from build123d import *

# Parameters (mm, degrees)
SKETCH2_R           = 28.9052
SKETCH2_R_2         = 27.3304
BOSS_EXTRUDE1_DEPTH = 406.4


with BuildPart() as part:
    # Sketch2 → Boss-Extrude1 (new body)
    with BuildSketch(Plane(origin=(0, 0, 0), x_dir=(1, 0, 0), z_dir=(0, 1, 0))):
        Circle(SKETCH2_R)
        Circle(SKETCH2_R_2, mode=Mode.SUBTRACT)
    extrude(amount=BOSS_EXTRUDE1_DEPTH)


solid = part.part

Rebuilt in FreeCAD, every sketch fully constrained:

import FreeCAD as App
import Part
import Sketcher
Q = App.Units.Quantity

doc = App.newDocument("Part")
body = doc.addObject("PartDesign::Body", "Body")

# Sketch on XZ plane
sketch1 = body.newObject("Sketcher::SketchObject", "Sketch")
sketch1.AttachmentSupport = (doc.getObject("XZ_Plane"), [""])
sketch1.MapMode = "FlatFace"
sketch1.addGeometry([
    Part.Circle(App.Vector(0, 0, 0), App.Vector(0, 0, 1), 28.9052),
    Part.Circle(App.Vector(0, 0, 0), App.Vector(0, 0, 1), 27.3304),
], False)
sketch1.addConstraint([
    Sketcher.Constraint("Coincident", 0, 3, -1, 1),
    Sketcher.Constraint("Coincident", 1, 3, -1, 1),
    Sketcher.Constraint("Diameter", 0, Q("2.276 in")),
    Sketcher.Constraint("Diameter", 1, Q("2.152 in")),
])
pad1 = body.newObject("PartDesign::Pad", "Pad")
pad1.Profile = sketch1
pad1.Length = Q("16 in")
pad1.Reversed = True

doc.recompute()
